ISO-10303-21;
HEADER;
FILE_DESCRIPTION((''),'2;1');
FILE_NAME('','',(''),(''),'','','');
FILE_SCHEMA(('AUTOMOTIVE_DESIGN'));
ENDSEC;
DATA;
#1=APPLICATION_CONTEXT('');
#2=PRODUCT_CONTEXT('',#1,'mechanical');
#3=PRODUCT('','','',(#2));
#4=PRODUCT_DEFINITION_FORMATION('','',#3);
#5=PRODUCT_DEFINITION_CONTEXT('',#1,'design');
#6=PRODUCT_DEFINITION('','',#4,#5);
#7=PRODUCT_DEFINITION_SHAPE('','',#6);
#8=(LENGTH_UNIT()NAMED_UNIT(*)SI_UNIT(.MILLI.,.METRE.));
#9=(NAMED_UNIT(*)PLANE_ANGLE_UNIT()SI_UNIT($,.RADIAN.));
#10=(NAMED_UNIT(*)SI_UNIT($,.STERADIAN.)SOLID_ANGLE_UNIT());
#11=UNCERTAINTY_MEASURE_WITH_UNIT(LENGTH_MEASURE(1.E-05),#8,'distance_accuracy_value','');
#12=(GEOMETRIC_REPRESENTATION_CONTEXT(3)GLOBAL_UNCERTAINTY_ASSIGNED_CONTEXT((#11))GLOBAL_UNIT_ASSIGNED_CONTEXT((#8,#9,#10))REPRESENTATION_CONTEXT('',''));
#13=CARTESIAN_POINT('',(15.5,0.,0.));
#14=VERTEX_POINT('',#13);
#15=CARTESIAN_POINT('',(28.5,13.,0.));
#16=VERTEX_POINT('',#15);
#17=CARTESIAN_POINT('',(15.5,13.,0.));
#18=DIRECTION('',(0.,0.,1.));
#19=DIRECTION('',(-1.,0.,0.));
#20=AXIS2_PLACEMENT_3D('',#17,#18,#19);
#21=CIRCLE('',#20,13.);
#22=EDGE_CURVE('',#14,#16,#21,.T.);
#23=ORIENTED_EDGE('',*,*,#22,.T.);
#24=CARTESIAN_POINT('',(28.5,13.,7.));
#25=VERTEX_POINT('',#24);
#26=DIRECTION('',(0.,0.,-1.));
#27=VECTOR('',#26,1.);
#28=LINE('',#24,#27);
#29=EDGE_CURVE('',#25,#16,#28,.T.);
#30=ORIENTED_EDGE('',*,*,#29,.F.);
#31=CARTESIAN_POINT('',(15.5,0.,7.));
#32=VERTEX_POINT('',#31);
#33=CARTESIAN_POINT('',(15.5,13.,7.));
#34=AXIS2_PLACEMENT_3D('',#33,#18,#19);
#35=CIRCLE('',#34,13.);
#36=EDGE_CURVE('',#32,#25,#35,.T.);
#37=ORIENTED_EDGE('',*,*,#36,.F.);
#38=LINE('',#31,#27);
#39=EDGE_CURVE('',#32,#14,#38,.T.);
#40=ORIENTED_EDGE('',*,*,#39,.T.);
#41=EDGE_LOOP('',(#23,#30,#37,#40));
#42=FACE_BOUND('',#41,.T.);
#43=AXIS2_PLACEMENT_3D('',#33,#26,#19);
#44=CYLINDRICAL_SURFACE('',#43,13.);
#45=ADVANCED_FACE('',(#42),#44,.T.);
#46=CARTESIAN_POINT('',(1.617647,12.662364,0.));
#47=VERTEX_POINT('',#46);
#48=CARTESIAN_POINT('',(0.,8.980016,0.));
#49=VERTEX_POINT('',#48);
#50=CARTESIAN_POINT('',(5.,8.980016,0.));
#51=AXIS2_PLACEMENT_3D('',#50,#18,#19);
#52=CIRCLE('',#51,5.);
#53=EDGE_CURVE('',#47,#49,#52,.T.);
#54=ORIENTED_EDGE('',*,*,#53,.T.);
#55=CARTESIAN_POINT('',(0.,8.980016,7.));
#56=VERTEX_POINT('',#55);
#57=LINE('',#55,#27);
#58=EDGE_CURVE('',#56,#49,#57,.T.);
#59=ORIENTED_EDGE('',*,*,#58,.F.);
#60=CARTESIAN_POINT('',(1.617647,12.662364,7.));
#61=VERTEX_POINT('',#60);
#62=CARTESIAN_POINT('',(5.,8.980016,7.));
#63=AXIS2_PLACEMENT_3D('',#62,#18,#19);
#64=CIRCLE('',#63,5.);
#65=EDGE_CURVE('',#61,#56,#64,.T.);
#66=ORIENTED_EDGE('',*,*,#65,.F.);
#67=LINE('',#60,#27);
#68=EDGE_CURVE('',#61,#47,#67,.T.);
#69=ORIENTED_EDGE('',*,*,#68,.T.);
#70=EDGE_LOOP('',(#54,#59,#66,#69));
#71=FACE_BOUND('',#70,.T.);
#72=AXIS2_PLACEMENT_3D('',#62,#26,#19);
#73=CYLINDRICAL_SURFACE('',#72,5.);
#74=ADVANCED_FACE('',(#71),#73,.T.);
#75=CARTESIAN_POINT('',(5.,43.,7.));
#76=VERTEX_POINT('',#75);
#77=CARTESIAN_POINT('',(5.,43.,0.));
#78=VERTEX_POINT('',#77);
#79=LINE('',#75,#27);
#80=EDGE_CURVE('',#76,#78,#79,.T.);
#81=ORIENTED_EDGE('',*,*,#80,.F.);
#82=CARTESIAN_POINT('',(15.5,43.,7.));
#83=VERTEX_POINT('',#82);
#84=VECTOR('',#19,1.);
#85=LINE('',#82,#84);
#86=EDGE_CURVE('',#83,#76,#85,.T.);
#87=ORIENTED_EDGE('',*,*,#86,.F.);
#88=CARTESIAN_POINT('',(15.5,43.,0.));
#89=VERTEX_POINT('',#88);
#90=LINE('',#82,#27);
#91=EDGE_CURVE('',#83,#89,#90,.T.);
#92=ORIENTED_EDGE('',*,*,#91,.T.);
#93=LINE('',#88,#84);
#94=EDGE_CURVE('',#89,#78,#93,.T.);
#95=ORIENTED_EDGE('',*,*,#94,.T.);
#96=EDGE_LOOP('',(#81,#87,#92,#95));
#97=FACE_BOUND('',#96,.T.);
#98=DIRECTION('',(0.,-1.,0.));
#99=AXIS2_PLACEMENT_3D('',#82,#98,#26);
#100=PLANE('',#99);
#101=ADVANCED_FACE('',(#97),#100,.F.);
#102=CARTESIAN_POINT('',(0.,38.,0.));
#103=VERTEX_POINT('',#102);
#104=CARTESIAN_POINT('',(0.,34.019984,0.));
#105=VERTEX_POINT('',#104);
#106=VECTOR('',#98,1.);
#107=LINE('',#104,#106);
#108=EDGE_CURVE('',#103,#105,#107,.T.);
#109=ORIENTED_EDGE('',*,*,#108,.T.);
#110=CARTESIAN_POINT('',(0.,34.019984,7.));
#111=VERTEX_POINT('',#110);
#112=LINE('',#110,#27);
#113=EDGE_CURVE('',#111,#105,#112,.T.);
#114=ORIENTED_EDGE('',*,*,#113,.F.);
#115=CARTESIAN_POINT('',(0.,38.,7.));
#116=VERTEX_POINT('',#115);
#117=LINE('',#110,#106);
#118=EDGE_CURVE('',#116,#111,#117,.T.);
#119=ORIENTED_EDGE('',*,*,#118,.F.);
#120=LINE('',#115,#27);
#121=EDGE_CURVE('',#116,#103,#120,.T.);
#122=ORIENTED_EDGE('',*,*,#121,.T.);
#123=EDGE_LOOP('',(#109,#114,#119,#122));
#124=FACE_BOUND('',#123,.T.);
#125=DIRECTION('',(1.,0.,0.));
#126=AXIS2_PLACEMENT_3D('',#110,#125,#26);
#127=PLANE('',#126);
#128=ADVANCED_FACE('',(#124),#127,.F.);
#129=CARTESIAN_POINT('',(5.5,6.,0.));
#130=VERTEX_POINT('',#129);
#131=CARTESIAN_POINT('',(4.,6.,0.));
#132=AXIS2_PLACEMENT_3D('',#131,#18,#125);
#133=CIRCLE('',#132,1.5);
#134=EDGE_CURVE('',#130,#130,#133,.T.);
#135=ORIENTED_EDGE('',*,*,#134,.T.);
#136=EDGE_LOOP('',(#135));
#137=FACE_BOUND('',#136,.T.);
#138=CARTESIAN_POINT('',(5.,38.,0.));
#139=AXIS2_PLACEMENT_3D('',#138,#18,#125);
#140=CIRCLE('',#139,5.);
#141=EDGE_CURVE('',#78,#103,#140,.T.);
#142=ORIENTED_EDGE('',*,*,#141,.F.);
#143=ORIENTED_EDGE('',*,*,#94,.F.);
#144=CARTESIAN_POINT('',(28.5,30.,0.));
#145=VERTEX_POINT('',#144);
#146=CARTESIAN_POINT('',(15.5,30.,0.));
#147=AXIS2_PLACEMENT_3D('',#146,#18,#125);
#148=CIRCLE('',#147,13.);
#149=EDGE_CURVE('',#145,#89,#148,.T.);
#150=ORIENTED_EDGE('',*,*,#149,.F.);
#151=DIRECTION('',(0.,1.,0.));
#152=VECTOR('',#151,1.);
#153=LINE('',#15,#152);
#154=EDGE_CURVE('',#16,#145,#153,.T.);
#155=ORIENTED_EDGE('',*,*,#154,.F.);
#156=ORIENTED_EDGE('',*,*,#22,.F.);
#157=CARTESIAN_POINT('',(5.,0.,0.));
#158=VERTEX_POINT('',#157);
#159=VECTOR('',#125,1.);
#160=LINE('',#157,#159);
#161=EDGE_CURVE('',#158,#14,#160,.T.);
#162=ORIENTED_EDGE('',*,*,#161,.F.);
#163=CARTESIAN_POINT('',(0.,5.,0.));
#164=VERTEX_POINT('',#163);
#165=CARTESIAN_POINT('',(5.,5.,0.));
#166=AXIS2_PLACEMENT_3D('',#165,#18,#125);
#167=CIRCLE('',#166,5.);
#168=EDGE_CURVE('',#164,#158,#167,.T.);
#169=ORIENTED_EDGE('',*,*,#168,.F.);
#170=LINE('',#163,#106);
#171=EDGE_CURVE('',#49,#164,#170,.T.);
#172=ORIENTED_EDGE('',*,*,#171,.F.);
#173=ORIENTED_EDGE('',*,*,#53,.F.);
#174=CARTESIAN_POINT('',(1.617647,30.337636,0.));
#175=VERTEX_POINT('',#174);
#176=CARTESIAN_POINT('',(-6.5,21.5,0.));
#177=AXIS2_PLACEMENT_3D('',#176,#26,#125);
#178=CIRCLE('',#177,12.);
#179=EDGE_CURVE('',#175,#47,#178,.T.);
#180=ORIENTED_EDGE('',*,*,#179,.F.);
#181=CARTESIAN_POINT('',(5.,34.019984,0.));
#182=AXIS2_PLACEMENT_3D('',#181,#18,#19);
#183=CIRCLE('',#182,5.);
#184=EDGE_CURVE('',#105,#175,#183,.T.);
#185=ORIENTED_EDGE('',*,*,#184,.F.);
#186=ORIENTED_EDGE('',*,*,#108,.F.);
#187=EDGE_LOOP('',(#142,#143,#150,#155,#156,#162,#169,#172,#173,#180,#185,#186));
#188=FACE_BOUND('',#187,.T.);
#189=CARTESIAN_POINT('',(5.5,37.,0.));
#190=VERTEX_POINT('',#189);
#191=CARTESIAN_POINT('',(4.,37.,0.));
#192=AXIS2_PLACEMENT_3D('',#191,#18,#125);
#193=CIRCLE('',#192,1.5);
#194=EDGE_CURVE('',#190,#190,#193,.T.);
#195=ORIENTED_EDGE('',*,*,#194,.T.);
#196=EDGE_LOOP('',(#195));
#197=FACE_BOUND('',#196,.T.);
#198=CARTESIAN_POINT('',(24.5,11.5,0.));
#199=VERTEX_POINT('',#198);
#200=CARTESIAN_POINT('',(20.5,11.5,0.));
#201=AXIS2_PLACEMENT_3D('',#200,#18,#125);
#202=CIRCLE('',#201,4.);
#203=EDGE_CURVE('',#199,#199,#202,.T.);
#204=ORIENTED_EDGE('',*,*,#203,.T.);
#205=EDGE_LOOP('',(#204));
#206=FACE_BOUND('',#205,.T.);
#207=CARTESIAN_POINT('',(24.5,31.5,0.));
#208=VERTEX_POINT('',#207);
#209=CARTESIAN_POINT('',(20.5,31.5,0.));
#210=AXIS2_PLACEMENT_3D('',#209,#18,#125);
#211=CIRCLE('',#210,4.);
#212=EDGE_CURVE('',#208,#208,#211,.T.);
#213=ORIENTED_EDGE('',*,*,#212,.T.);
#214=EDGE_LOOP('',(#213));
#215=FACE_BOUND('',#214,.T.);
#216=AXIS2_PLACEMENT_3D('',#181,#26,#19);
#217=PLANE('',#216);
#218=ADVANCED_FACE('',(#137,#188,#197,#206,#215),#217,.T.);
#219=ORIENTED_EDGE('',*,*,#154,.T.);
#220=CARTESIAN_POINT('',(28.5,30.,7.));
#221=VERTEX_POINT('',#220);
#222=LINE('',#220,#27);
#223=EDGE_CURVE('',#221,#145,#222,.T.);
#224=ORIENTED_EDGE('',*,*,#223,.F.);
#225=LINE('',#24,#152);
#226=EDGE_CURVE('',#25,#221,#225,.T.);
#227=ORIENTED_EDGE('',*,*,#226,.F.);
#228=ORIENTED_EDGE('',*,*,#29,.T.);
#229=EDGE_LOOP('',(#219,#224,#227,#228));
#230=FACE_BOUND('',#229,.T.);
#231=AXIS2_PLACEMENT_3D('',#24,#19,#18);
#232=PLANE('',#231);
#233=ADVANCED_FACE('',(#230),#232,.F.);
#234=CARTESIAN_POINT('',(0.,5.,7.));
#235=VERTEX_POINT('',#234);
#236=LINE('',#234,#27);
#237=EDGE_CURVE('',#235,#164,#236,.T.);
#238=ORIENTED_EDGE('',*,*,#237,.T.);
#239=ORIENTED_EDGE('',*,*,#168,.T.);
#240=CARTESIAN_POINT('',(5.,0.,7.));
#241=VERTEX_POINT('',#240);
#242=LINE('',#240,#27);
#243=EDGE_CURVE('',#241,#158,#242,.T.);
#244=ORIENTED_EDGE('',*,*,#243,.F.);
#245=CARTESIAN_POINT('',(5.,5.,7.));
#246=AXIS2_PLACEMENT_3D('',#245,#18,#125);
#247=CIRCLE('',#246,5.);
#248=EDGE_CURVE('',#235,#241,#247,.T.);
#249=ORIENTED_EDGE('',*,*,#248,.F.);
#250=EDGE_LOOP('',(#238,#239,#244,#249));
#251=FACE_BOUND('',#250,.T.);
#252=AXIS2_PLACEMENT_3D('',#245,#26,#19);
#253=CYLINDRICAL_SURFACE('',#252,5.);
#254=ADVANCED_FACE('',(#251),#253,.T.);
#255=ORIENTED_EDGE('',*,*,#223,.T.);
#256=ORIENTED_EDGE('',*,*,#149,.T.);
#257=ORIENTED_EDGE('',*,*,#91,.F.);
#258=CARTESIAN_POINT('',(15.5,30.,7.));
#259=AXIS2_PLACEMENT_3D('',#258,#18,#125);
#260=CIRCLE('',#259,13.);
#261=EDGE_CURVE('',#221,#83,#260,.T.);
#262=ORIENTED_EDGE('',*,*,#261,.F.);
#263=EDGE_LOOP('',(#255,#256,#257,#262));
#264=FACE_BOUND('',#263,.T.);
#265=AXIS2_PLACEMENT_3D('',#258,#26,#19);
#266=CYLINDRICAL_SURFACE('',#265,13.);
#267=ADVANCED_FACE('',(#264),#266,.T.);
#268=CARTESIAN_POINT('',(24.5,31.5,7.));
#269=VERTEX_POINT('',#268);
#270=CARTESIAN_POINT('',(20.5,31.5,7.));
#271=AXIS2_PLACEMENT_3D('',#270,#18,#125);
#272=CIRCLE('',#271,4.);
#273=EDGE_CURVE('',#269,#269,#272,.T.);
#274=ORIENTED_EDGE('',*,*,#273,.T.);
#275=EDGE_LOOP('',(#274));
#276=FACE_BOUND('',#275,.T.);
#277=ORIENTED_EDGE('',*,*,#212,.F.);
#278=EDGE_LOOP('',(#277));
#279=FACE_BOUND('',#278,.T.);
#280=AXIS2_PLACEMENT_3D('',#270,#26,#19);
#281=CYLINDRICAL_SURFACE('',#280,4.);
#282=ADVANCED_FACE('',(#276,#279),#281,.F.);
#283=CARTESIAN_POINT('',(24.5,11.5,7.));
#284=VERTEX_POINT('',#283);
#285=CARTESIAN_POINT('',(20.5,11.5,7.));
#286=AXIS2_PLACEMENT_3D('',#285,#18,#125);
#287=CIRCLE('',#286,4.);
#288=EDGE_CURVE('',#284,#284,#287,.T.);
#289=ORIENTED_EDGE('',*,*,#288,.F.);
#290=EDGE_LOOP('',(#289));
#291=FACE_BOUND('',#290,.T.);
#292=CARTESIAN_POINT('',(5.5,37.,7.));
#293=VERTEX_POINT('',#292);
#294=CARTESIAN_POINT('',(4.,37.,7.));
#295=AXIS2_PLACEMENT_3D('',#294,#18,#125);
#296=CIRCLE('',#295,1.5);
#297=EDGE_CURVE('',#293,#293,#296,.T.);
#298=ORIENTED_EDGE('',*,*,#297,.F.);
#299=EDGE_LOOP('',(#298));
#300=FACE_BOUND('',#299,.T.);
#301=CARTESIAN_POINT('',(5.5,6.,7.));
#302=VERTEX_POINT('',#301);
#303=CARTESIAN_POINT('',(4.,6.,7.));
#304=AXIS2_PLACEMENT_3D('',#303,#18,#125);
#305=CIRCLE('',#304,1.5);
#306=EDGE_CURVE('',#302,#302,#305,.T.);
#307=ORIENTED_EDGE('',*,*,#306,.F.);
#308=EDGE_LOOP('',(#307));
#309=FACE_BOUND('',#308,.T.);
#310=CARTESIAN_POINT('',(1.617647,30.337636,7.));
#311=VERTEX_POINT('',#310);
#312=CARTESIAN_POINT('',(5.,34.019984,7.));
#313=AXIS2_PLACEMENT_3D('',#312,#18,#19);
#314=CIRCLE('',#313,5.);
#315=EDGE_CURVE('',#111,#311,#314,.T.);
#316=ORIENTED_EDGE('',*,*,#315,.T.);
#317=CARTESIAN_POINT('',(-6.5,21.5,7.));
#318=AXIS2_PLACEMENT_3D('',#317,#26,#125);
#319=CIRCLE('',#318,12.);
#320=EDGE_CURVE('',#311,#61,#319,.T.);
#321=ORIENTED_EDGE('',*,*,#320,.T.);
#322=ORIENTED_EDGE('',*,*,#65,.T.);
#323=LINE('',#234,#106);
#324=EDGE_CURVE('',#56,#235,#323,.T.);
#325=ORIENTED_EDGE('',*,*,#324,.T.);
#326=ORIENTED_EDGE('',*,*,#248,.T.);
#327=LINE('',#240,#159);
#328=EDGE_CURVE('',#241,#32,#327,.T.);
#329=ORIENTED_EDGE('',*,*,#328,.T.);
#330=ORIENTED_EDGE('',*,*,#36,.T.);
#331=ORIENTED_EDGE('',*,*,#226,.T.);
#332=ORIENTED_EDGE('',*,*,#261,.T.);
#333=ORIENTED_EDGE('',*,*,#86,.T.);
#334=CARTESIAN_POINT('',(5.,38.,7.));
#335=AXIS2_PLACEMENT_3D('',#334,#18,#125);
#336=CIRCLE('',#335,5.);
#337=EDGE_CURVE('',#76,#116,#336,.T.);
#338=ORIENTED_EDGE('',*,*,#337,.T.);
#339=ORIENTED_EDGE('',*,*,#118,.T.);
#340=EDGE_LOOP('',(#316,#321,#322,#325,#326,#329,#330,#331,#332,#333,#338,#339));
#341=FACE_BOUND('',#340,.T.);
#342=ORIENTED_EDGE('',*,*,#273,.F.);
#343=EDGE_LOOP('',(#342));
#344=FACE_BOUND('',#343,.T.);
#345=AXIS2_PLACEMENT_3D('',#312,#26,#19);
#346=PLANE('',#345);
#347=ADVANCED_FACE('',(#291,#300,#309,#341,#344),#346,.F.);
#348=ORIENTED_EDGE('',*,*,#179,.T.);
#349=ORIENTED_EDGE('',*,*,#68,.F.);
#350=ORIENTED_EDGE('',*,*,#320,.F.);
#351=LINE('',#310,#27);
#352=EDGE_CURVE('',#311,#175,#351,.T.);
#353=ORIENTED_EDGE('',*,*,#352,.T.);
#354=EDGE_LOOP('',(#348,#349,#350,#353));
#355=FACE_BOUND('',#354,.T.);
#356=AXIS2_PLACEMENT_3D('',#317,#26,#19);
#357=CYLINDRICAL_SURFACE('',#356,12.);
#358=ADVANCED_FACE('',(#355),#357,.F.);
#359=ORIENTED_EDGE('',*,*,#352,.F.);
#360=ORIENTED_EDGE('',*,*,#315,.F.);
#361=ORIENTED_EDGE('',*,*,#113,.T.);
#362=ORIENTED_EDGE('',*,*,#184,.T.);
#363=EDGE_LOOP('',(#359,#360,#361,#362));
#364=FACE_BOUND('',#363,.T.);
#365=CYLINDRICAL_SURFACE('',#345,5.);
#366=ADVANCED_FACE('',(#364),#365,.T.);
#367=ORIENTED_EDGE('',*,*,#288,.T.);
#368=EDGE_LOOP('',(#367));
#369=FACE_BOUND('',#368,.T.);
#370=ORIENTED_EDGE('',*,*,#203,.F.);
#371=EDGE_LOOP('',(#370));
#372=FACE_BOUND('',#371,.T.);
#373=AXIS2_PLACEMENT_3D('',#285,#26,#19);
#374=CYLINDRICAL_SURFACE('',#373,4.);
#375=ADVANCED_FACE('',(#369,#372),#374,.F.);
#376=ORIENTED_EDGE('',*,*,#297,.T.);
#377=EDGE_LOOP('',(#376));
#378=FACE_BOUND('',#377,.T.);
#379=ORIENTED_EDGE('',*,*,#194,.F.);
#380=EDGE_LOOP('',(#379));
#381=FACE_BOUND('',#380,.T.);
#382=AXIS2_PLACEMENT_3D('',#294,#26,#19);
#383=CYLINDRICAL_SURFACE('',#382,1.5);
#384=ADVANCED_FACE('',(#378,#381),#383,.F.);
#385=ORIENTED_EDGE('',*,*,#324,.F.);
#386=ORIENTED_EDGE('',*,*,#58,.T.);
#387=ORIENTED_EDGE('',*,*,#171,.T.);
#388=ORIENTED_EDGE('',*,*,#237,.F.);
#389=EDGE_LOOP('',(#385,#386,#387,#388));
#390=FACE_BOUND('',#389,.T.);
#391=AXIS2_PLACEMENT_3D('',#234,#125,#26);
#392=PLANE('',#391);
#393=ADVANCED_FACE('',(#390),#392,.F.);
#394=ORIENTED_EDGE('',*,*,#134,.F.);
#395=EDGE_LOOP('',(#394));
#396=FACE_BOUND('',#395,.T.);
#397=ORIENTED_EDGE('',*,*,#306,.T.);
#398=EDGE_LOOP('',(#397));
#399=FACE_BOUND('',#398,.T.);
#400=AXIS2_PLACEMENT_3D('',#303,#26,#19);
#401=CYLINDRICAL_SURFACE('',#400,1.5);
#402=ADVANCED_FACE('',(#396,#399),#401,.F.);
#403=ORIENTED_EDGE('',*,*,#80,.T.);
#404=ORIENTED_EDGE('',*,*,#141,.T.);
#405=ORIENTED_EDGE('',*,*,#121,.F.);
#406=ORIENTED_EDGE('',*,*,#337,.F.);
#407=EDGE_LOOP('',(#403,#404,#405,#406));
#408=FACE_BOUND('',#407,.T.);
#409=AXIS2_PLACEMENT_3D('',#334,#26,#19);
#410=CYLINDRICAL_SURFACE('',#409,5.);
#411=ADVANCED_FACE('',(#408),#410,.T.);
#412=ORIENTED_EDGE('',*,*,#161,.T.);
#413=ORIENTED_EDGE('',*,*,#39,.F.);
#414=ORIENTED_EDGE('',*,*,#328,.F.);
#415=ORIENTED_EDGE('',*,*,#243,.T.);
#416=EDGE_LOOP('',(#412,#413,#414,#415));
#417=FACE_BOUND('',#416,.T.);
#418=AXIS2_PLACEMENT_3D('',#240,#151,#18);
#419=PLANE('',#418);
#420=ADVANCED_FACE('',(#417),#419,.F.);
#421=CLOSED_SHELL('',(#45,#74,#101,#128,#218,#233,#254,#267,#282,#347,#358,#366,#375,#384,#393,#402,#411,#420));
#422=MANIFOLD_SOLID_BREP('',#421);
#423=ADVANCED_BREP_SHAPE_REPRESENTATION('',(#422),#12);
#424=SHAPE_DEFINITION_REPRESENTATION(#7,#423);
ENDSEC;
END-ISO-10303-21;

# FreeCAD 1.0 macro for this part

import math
import FreeCAD as App
import Part
import Sketcher

doc = App.newDocument("Part")
body = doc.addObject("PartDesign::Body", "Body")

# Sketch on XY plane
sketch1 = body.newObject("Sketcher::SketchObject", "Sketch")
sketch1.AttachmentSupport = (doc.getObject("XY_Plane"), [""])
sketch1.MapMode = "FlatFace"
sketch1.addGeometry(Part.LineSegment(App.Vector(5, 0, 0), App.Vector(15.5, 0, 0)), False)
sketch1.addGeometry(Part.ArcOfCircle(Part.Circle(App.Vector(15.5, 13, 0), App.Vector(0, 0, 1), 13), math.radians(-90), math.radians(0)), False)
sketch1.addGeometry(Part.LineSegment(App.Vector(28.5, 13, 0), App.Vector(28.5, 30, 0)), False)
sketch1.addGeometry(Part.ArcOfCircle(Part.Circle(App.Vector(15.5, 30, 0), App.Vector(0, 0, 1), 13), math.radians(0), math.radians(90)), False)
sketch1.addGeometry(Part.LineSegment(App.Vector(15.5, 43, 0), App.Vector(5, 43, 0)), False)
sketch1.addGeometry(Part.ArcOfCircle(Part.Circle(App.Vector(5, 38, 0), App.Vector(0, 0, 1), 5), math.radians(90), math.radians(180)), False)
sketch1.addGeometry(Part.LineSegment(App.Vector(0, 38, 0), App.Vector(0, 34, 0)), False)
sketch1.addGeometry(Part.ArcOfCircle(Part.Circle(App.Vector(5, 34, 0), App.Vector(0, 0, 1), 5), math.radians(180), math.radians(227)), False)
sketch1.addGeometry(Part.ArcOfCircle(Part.Circle(App.Vector(-6.5, 21.5, 0), App.Vector(0, 0, 1), 12), math.radians(-47), math.radians(47)), False)
sketch1.addGeometry(Part.ArcOfCircle(Part.Circle(App.Vector(5, 9, 0), App.Vector(0, 0, 1), 5), math.radians(133), math.radians(180)), False)
sketch1.addGeometry(Part.LineSegment(App.Vector(0, 9, 0), App.Vector(0, 5, 0)), False)
sketch1.addGeometry(Part.ArcOfCircle(Part.Circle(App.Vector(5, 5, 0), App.Vector(0, 0, 1), 5), math.radians(180), math.radians(270)), False)
sketch1.addGeometry(Part.Circle(App.Vector(4, 6, 0), App.Vector(0, 0, 1), 1.5), False)
sketch1.addGeometry(Part.Circle(App.Vector(20.5, 11.5, 0), App.Vector(0, 0, 1), 4), False)
sketch1.addGeometry(Part.Circle(App.Vector(4, 37, 0), App.Vector(0, 0, 1), 1.5), False)
sketch1.addGeometry(Part.Circle(App.Vector(20.5, 31.5, 0), App.Vector(0, 0, 1), 4), False)
sketch1.addConstraint(Sketcher.Constraint("Tangent", 0, 2, 1, 1))
sketch1.addConstraint(Sketcher.Constraint("Tangent", 1, 2, 2, 1))
sketch1.addConstraint(Sketcher.Constraint("Tangent", 2, 2, 3, 1))
sketch1.addConstraint(Sketcher.Constraint("Tangent", 3, 2, 4, 1))
sketch1.addConstraint(Sketcher.Constraint("Tangent", 4, 2, 5, 1))
sketch1.addConstraint(Sketcher.Constraint("Tangent", 5, 2, 6, 1))
sketch1.addConstraint(Sketcher.Constraint("Tangent", 6, 2, 7, 1))
sketch1.addConstraint(Sketcher.Constraint("Tangent", 7, 2, 8, 2))
sketch1.addConstraint(Sketcher.Constraint("Tangent", 8, 1, 9, 1))
sketch1.addConstraint(Sketcher.Constraint("Tangent", 9, 2, 10, 1))
sketch1.addConstraint(Sketcher.Constraint("Tangent", 10, 2, 11, 1))
sketch1.addConstraint(Sketcher.Constraint("Tangent", 11, 2, 0, 1))
sketch1.addConstraint(Sketcher.Constraint("Horizontal", 0))
sketch1.addConstraint(Sketcher.Constraint("Vertical", 2))
sketch1.addConstraint(Sketcher.Constraint("Horizontal", 4))
sketch1.addConstraint(Sketcher.Constraint("Vertical", 6))
sketch1.addConstraint(Sketcher.Constraint("Vertical", 10))
sketch1.addConstraint(Sketcher.Constraint("Equal", 1, 3))
sketch1.addConstraint(Sketcher.Constraint("Equal", 5, 7))
sketch1.addConstraint(Sketcher.Constraint("Equal", 7, 9))
sketch1.addConstraint(Sketcher.Constraint("Equal", 9, 11))
sketch1.addConstraint(Sketcher.Constraint("Equal", 12, 14))
sketch1.addConstraint(Sketcher.Constraint("Equal", 13, 15))
sketch1.addConstraint(Sketcher.Constraint("PointOnObject", 0, 2, -1))
sketch1.addConstraint(Sketcher.Constraint("PointOnObject", 5, 2, -2))
sketch1.addConstraint(Sketcher.Constraint("PointOnObject", 9, 2, -2))
sketch1.addConstraint(Sketcher.Constraint("Vertical", 12, 3, 14, 3))
sketch1.addConstraint(Sketcher.Constraint("Vertical", 13, 3, 15, 3))
sketch1.addConstraint(Sketcher.Constraint("Equal", 6, 10))
sketch1.addConstraint(Sketcher.Constraint("Diameter", 12, 3.0))
sketch1.addConstraint(Sketcher.Constraint("Diameter", 13, 8.0))
sketch1.addConstraint(Sketcher.Constraint("Radius", 1, 13.0))
sketch1.addConstraint(Sketcher.Constraint("Radius", 5, 5.0))
sketch1.addConstraint(Sketcher.Constraint("Radius", 8, 12.0))
sketch1.addConstraint(Sketcher.Constraint("DistanceY", 2, 1, 2, 2, 17.0))
sketch1.addConstraint(Sketcher.Constraint("DistanceX", 0, 1, 0, 2, 10.5))
sketch1.addConstraint(Sketcher.Constraint("DistanceX", -1, 1, 12, 3, 4.0))
sketch1.addConstraint(Sketcher.Constraint("DistanceY", -1, 1, 12, 3, 6.0))
sketch1.addConstraint(Sketcher.Constraint("DistanceY", -1, 1, 14, 3, 37.0))
sketch1.addConstraint(Sketcher.Constraint("DistanceX", 8, 3, 1, 3, 22.0))
sketch1.addConstraint(Sketcher.Constraint("DistanceX", 1, 3, 13, 3, 5.0))
sketch1.addConstraint(Sketcher.Constraint("DistanceY", -1, 1, 13, 3, 11.5))
sketch1.addConstraint(Sketcher.Constraint("DistanceY", -1, 1, 15, 3, 31.5))
pad1 = body.newObject("PartDesign::Pad", "Pad")
pad1.Profile = sketch1
pad1.Length = 7

doc.recompute()
